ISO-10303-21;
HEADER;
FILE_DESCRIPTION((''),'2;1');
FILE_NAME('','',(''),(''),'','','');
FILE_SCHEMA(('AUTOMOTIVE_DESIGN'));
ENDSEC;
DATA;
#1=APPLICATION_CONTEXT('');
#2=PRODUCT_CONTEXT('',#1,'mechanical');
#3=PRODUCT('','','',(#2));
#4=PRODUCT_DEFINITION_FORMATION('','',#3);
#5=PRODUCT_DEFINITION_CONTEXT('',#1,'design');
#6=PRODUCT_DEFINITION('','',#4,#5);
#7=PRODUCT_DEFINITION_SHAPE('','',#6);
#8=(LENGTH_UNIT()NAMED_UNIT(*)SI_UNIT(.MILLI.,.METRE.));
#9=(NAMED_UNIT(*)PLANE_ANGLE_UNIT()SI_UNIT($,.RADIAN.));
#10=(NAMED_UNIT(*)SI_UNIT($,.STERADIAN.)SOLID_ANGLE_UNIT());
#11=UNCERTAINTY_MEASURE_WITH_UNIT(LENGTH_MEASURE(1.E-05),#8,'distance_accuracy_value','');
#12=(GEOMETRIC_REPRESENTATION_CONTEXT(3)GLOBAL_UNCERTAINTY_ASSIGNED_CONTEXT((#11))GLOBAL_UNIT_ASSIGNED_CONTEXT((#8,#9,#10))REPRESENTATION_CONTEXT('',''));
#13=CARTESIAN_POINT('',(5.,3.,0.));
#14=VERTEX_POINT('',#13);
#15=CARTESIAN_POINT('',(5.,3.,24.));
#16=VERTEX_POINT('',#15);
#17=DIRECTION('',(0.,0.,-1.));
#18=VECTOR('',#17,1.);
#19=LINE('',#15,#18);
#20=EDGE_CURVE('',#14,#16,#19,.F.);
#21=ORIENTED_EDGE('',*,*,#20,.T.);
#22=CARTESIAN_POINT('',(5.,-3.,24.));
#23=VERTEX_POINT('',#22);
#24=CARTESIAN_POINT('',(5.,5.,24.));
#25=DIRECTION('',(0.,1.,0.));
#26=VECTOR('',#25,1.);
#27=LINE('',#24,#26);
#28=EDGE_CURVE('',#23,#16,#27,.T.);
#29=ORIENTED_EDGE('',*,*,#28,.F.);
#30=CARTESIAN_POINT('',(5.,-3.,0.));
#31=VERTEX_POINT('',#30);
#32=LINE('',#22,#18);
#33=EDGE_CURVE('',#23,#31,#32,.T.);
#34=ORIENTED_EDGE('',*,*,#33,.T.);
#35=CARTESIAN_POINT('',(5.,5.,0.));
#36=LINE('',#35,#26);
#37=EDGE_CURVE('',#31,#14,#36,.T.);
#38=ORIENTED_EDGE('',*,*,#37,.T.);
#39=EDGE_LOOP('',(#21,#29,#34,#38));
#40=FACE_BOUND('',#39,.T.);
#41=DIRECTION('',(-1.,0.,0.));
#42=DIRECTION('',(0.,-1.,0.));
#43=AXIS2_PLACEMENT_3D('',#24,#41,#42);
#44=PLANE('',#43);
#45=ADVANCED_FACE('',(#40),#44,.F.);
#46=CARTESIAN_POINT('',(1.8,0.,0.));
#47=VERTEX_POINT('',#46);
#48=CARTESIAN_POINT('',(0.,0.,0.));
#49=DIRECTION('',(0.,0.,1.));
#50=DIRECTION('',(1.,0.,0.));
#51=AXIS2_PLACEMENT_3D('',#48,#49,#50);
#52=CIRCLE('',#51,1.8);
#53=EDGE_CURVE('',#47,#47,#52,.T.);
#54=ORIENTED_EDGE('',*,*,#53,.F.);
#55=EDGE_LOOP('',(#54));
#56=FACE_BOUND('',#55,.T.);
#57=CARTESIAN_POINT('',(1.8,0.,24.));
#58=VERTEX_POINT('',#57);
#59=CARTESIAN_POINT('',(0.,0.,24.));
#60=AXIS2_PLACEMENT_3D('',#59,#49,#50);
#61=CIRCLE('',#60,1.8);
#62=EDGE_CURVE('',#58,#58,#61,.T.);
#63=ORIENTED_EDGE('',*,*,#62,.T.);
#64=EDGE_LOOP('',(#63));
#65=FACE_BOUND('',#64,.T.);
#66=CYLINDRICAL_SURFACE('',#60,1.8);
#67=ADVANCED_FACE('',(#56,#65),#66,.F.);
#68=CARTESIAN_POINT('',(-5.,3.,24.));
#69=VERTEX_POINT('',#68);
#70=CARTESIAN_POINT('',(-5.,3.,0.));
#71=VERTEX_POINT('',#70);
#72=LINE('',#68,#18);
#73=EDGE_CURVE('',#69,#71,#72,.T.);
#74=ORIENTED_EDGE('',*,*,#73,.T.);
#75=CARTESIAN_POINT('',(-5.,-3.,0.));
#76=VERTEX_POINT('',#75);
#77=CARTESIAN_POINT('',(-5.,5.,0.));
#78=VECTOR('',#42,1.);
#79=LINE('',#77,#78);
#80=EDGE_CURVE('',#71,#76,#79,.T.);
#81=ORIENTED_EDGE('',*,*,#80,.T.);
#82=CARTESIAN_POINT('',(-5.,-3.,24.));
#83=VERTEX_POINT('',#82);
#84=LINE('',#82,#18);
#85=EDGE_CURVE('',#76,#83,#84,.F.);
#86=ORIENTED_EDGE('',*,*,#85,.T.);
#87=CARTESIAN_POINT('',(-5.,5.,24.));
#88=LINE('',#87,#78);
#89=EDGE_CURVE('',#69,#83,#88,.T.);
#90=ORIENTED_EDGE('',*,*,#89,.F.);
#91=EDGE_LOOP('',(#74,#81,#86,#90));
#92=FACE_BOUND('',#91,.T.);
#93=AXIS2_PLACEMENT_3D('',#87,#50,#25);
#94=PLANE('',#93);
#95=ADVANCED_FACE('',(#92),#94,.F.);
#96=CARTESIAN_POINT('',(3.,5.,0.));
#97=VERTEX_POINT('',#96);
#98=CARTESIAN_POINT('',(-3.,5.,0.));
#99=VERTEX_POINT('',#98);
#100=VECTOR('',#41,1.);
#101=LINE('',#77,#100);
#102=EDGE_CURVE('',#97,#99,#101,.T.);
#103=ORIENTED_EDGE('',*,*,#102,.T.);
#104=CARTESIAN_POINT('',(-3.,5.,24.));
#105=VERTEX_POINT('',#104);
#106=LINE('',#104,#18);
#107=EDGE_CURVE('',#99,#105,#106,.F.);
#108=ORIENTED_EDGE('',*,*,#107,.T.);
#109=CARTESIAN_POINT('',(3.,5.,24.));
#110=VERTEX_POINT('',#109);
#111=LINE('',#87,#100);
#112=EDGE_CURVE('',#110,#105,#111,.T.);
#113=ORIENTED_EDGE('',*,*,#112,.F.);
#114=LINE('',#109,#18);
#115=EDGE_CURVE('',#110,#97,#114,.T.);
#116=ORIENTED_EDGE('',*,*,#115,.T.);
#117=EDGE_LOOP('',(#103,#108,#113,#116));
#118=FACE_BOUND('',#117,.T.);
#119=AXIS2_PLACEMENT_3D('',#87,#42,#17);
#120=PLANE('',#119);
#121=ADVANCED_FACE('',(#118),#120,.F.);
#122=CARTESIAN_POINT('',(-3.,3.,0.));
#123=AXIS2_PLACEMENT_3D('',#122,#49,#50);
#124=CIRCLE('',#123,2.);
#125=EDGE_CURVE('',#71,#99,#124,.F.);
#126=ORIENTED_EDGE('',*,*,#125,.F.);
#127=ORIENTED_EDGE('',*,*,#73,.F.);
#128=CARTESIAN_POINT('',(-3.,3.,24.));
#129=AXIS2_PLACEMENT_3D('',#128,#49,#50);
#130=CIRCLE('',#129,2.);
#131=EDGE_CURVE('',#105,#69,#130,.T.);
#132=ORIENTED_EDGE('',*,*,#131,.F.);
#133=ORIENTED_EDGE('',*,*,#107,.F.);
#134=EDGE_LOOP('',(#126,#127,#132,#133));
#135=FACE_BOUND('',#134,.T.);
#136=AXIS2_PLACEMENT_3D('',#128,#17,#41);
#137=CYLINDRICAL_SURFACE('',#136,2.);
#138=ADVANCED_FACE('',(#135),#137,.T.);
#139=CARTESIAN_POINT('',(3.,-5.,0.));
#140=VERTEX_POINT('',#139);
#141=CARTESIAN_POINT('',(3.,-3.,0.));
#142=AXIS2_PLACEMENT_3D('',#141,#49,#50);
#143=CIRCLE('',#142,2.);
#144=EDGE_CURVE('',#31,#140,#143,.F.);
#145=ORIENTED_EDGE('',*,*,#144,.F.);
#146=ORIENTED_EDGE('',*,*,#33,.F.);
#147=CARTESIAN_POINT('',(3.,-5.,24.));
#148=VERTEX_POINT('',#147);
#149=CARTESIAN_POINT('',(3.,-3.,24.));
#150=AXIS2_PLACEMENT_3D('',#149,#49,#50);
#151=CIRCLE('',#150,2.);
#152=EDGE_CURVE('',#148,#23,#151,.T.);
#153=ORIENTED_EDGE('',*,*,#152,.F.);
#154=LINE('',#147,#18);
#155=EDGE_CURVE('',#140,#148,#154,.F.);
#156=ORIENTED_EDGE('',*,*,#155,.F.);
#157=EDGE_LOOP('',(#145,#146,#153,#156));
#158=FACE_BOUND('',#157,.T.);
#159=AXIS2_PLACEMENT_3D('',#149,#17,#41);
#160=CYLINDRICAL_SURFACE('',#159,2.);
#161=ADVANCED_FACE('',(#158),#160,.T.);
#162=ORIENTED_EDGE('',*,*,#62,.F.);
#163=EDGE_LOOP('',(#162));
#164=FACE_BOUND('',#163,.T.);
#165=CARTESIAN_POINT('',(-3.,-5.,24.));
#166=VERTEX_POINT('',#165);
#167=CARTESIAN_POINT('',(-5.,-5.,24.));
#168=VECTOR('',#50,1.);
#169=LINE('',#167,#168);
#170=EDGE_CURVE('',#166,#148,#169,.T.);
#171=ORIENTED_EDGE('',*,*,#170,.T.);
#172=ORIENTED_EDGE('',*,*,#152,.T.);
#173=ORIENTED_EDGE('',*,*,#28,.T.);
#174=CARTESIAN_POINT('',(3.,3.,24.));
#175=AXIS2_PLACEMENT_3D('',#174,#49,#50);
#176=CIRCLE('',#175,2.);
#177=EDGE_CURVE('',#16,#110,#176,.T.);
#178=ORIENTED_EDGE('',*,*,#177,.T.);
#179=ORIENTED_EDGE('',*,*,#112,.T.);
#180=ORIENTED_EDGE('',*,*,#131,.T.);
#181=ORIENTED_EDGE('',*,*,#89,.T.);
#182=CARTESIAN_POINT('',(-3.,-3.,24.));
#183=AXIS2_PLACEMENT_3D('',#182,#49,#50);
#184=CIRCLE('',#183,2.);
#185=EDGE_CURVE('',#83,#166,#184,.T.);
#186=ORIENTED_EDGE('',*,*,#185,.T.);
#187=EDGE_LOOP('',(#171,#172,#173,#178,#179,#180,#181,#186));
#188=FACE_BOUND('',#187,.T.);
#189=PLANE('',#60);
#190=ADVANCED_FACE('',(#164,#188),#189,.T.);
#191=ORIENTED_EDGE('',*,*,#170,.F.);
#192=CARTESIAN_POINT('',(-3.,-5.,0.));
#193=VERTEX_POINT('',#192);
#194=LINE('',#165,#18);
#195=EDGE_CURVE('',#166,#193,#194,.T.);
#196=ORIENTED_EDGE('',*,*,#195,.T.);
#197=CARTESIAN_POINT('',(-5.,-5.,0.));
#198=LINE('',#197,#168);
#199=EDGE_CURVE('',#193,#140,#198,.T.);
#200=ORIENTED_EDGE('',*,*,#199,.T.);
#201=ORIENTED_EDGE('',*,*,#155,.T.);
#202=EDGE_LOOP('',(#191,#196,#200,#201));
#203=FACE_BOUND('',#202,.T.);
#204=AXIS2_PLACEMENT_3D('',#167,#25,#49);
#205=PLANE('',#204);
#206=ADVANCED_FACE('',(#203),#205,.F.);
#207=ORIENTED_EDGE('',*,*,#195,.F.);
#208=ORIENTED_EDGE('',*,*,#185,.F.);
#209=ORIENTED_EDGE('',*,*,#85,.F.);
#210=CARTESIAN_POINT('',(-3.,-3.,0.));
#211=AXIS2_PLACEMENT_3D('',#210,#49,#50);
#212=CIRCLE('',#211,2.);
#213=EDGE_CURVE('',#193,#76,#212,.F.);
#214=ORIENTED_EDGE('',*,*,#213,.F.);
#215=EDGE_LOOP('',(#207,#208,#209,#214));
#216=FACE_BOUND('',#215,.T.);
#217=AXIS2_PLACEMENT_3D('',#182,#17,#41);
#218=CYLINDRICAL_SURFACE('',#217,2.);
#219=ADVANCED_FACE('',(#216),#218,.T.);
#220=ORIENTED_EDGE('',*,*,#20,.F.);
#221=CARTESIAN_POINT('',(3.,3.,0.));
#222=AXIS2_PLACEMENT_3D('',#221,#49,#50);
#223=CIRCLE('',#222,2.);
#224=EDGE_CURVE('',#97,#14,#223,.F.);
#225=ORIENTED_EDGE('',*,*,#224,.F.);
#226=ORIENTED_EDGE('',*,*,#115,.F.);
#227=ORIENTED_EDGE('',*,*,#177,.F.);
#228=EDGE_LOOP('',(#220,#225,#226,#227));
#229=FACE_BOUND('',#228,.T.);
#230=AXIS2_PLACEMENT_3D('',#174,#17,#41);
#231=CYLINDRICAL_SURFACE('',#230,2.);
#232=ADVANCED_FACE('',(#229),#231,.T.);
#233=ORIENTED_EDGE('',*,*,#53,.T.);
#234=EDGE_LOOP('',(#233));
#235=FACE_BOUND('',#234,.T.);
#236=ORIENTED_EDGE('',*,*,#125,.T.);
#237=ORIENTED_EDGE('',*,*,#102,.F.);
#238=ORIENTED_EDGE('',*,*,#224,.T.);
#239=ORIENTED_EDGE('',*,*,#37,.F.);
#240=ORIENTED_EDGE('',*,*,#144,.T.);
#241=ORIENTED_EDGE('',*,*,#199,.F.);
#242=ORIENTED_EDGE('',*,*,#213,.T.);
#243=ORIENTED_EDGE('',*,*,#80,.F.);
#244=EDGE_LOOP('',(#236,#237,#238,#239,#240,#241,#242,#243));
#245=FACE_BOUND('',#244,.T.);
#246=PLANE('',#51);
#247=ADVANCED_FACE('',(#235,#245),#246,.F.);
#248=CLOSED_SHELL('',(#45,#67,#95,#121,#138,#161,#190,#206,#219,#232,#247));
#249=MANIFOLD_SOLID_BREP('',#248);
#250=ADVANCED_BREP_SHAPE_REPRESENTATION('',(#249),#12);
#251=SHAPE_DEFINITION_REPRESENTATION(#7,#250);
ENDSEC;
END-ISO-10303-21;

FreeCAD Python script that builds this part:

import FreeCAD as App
import Part
import Sketcher
from FreeCAD import Vector


def edges_at(feature, points):
    """Names of the edges that pass closest to the given points."""
    edges = feature.Shape.Edges
    near = lambda p: min(range(len(edges)), key=lambda i: edges[i].distToShape(Part.Vertex(*p))[0])
    return sorted({f"Edge{near(p) + 1}" for p in points})


def add_polygon(sketch, points):
    """Adds a closed chain of lines whose ends are joined by coincident constraints."""
    first, n = sketch.GeometryCount, len(points)
    for a, b in zip(points, points[1:] + points[:1]):
        sketch.addGeometry(Part.LineSegment(App.Vector(*a, 0), App.Vector(*b, 0)), False)
    for i in range(n):
        sketch.addConstraint(Sketcher.Constraint("Coincident", first + i, 2, first + (i + 1) % n, 1))

doc = App.newDocument("Part")
body = doc.addObject("PartDesign::Body", "Body")

sketch1 = body.newObject("Sketcher::SketchObject", "Sketch")
sketch1.AttachmentSupport = (doc.getObject("XY_Plane"), [""])
sketch1.MapMode = "FlatFace"
add_polygon(sketch1, [(-5, 5), (-5, -5), (5, -5), (5, 5)])
sketch1.addConstraint([
    Sketcher.Constraint("Vertical", 0),
    Sketcher.Constraint("Horizontal", 1),
    Sketcher.Constraint("Vertical", 2),
    Sketcher.Constraint("Horizontal", 3),
    Sketcher.Constraint("Symmetric", 0, 2, 2, 2, -1, 1),
    Sketcher.Constraint("Equal", 3, 0),
    Sketcher.Constraint("DistanceX", 1, 1, 1, 2, 10.0),
])
pad1 = body.newObject("PartDesign::Pad", "Pad")
pad1.Profile = sketch1
pad1.Length = 24

sketch2 = body.newObject("Sketcher::SketchObject", "Sketch001")
sketch2.AttachmentSupport = (doc.getObject("XY_Plane"), [""])
sketch2.MapMode = "FlatFace"
sketch2.AttachmentOffset = App.Placement(Vector(0, 0, 24), App.Rotation())
sketch2.addGeometry(Part.Circle(Vector(0, 0, 0), Vector(0, 0, 1), 1.8), False)
sketch2.addConstraint([
    Sketcher.Constraint("Coincident", 0, 3, -1, 1),
    Sketcher.Constraint("Diameter", 0, 3.6),
])
doc.recompute()
hole = body.newObject("PartDesign::Hole", "Hole")
hole.Profile = sketch2
hole.ThreadType = "None"
hole.Diameter = 3.6
hole.DepthType = "ThroughAll"
doc.recompute()

fillet = body.newObject("PartDesign::Fillet", "Fillet")
fillet.Base = (hole, edges_at(hole, [
    (5, -5, 12),
    (-5, -5, 12),
    (-5, 5, 12),
    (5, 5, 12),
]))
fillet.Radius = 2

doc.recompute()
